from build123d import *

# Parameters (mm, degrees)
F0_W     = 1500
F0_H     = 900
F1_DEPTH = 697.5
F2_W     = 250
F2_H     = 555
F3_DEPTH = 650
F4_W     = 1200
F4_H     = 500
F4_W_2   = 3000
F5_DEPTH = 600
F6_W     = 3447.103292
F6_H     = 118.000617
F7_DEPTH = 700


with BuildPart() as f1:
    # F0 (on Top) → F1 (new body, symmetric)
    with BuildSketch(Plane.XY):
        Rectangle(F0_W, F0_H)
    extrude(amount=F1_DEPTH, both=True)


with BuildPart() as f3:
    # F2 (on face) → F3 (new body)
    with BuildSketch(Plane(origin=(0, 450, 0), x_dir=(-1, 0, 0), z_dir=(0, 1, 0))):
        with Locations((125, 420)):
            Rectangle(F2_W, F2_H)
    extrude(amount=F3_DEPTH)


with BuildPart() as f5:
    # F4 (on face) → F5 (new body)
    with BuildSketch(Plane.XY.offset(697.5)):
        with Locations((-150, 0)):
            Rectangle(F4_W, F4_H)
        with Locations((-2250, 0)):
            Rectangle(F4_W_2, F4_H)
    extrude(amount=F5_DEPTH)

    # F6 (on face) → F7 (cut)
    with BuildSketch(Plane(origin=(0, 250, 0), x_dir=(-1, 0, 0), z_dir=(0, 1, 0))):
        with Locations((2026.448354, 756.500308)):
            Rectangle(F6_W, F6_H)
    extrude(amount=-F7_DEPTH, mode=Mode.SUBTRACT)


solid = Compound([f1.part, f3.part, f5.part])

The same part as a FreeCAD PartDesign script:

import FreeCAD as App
import Part
import Sketcher

V = App.Vector

doc = App.newDocument("Part")
body = doc.addObject("PartDesign::Body", "Body")

sketch1 = doc.addObject("Sketcher::SketchObject", "Sketch")
body.addObject(sketch1)
sketch1.AttachmentSupport = (doc.XY_Plane, [""])
sketch1.MapMode = "FlatFace"
sketch1.addGeometry([
    Part.LineSegment(V(-750, 450, 0), V(-750, -450, 0)),
    Part.LineSegment(V(-750, -450, 0), V(750, -450, 0)),
    Part.LineSegment(V(750, -450, 0), V(750, 450, 0)),
    Part.LineSegment(V(750, 450, 0), V(-750, 450, 0)),
], False)
sketch1.addConstraint([
    Sketcher.Constraint("Coincident", 0, 2, 1, 1),
    Sketcher.Constraint("Coincident", 1, 2, 2, 1),
    Sketcher.Constraint("Coincident", 2, 2, 3, 1),
    Sketcher.Constraint("Coincident", 3, 2, 0, 1),
    Sketcher.Constraint("Vertical", 0),
    Sketcher.Constraint("Horizontal", 1),
    Sketcher.Constraint("Vertical", 2),
    Sketcher.Constraint("Horizontal", 3),
    Sketcher.Constraint("Symmetric", 0, 2, 2, 2, -1, 1),
    Sketcher.Constraint("DistanceX", 1, 1, 1, 2, 1500.0),
    Sketcher.Constraint("DistanceY", 0, 2, 0, 1, 900.0),
])
pad1 = doc.addObject("PartDesign::Pad", "Pad")
body.addObject(pad1)
pad1.Profile = sketch1
pad1.Length = 1395
pad1.Midplane = True
body2 = doc.addObject("PartDesign::Body", "Body001")

sketch2 = doc.addObject("Sketcher::SketchObject", "Sketch001")
body2.addObject(sketch2)
sketch2.AttachmentSupport = (doc.getObject("XZ_Plane001"), [""])
sketch2.MapMode = "FlatFace"
sketch2.AttachmentOffset = App.Placement(V(0, 0, -450), App.Rotation())
sketch2.addGeometry([
    Part.LineSegment(V(0, 697.5, 0), V(0, 142.5, 0)),
    Part.LineSegment(V(0, 142.5, 0), V(-250, 142.5, 0)),
    Part.LineSegment(V(-250, 142.5, 0), V(-250, 697.5, 0)),
    Part.LineSegment(V(-250, 697.5, 0), V(0, 697.5, 0)),
], False)
sketch2.addConstraint([
    Sketcher.Constraint("Coincident", 0, 2, 1, 1),
    Sketcher.Constraint("Coincident", 1, 2, 2, 1),
    Sketcher.Constraint("Coincident", 2, 2, 3, 1),
    Sketcher.Constraint("Coincident", 3, 2, 0, 1),
    Sketcher.Constraint("Vertical", 0),
    Sketcher.Constraint("Horizontal", 1),
    Sketcher.Constraint("Vertical", 2),
    Sketcher.Constraint("Horizontal", 3),
    Sketcher.Constraint("PointOnObject", 0, 2, -2),
    Sketcher.Constraint("DistanceX", 1, 2, 1, 1, 250.0),
    Sketcher.Constraint("DistanceY", 0, 2, 0, 1, 555.0),
    Sketcher.Constraint("DistanceY", -1, 1, 0, 2, 142.5),
])
pad2 = doc.addObject("PartDesign::Pad", "Pad001")
body2.addObject(pad2)
pad2.Profile = sketch2
pad2.Length = 650
pad2.Reversed = True
body3 = doc.addObject("PartDesign::Body", "Body002")

sketch3 = doc.addObject("Sketcher::SketchObject", "Sketch002")
body3.addObject(sketch3)
sketch3.AttachmentSupport = (doc.getObject("XY_Plane002"), [""])
sketch3.MapMode = "FlatFace"
sketch3.AttachmentOffset = App.Placement(V(0, 0, 697.5), App.Rotation())
sketch3.addGeometry([
    Part.LineSegment(V(450, -250, 0), V(450, 250, 0)),
    Part.LineSegment(V(450, 250, 0), V(-3750, 250, 0)),
    Part.LineSegment(V(-3750, 250, 0), V(-3750, -250, 0)),
    Part.LineSegment(V(-3750, -250, 0), V(450, -250, 0)),
], False)
sketch3.addConstraint([
    Sketcher.Constraint("Coincident", 0, 2, 1, 1),
    Sketcher.Constraint("Coincident", 1, 2, 2, 1),
    Sketcher.Constraint("Coincident", 2, 2, 3, 1),
    Sketcher.Constraint("Coincident", 3, 2, 0, 1),
    Sketcher.Constraint("Vertical", 0),
    Sketcher.Constraint("Horizontal", 1),
    Sketcher.Constraint("Vertical", 2),
    Sketcher.Constraint("Horizontal", 3),
    Sketcher.Constraint("DistanceX", 1, 2, 1, 1, 4200.0),
    Sketcher.Constraint("DistanceY", 0, 1, 0, 2, 500.0),
    Sketcher.Constraint("DistanceX", -1, 1, 0, 2, 450.0),
    Sketcher.Constraint("DistanceY", -1, 1, 0, 2, 250.0),
])
pad3 = doc.addObject("PartDesign::Pad", "Pad002")
body3.addObject(pad3)
pad3.Profile = sketch3
pad3.Length = 600

sketch4 = doc.addObject("Sketcher::SketchObject", "Sketch003")
body3.addObject(sketch4)
sketch4.AttachmentSupport = (doc.getObject("XZ_Plane002"), [""])
sketch4.MapMode = "FlatFace"
sketch4.AttachmentOffset = App.Placement(V(0, 0, -250), App.Rotation())
sketch4.addGeometry([
    Part.LineSegment(V(-302.896708, 815.500616, 0), V(-302.896708, 697.499999, 0)),
    Part.LineSegment(V(-302.896708, 697.499999, 0), V(-3750, 697.499999, 0)),
    Part.LineSegment(V(-3750, 697.499999, 0), V(-3750, 815.500616, 0)),
    Part.LineSegment(V(-3750, 815.500616, 0), V(-302.896708, 815.500616, 0)),
], False)
sketch4.addConstraint([
    Sketcher.Constraint("Coincident", 0, 2, 1, 1),
    Sketcher.Constraint("Coincident", 1, 2, 2, 1),
    Sketcher.Constraint("Coincident", 2, 2, 3, 1),
    Sketcher.Constraint("Coincident", 3, 2, 0, 1),
    Sketcher.Constraint("Vertical", 0),
    Sketcher.Constraint("Horizontal", 1),
    Sketcher.Constraint("Vertical", 2),
    Sketcher.Constraint("Horizontal", 3),
    Sketcher.Constraint("DistanceX", 1, 2, -1, 1, 3750.0),
    Sketcher.Constraint("DistanceY", -1, 1, 0, 2, 697.499999),
    Sketcher.Constraint("DistanceX", 1, 2, 1, 1, 3447.103292),
    Sketcher.Constraint("DistanceY", 0, 2, 0, 1, 118.000617),
])
pocket1 = doc.addObject("PartDesign::Pocket", "Pocket")
body3.addObject(pocket1)
pocket1.Profile = sketch4
pocket1.Length = 700
pocket1.Reversed = True

doc.recompute()
